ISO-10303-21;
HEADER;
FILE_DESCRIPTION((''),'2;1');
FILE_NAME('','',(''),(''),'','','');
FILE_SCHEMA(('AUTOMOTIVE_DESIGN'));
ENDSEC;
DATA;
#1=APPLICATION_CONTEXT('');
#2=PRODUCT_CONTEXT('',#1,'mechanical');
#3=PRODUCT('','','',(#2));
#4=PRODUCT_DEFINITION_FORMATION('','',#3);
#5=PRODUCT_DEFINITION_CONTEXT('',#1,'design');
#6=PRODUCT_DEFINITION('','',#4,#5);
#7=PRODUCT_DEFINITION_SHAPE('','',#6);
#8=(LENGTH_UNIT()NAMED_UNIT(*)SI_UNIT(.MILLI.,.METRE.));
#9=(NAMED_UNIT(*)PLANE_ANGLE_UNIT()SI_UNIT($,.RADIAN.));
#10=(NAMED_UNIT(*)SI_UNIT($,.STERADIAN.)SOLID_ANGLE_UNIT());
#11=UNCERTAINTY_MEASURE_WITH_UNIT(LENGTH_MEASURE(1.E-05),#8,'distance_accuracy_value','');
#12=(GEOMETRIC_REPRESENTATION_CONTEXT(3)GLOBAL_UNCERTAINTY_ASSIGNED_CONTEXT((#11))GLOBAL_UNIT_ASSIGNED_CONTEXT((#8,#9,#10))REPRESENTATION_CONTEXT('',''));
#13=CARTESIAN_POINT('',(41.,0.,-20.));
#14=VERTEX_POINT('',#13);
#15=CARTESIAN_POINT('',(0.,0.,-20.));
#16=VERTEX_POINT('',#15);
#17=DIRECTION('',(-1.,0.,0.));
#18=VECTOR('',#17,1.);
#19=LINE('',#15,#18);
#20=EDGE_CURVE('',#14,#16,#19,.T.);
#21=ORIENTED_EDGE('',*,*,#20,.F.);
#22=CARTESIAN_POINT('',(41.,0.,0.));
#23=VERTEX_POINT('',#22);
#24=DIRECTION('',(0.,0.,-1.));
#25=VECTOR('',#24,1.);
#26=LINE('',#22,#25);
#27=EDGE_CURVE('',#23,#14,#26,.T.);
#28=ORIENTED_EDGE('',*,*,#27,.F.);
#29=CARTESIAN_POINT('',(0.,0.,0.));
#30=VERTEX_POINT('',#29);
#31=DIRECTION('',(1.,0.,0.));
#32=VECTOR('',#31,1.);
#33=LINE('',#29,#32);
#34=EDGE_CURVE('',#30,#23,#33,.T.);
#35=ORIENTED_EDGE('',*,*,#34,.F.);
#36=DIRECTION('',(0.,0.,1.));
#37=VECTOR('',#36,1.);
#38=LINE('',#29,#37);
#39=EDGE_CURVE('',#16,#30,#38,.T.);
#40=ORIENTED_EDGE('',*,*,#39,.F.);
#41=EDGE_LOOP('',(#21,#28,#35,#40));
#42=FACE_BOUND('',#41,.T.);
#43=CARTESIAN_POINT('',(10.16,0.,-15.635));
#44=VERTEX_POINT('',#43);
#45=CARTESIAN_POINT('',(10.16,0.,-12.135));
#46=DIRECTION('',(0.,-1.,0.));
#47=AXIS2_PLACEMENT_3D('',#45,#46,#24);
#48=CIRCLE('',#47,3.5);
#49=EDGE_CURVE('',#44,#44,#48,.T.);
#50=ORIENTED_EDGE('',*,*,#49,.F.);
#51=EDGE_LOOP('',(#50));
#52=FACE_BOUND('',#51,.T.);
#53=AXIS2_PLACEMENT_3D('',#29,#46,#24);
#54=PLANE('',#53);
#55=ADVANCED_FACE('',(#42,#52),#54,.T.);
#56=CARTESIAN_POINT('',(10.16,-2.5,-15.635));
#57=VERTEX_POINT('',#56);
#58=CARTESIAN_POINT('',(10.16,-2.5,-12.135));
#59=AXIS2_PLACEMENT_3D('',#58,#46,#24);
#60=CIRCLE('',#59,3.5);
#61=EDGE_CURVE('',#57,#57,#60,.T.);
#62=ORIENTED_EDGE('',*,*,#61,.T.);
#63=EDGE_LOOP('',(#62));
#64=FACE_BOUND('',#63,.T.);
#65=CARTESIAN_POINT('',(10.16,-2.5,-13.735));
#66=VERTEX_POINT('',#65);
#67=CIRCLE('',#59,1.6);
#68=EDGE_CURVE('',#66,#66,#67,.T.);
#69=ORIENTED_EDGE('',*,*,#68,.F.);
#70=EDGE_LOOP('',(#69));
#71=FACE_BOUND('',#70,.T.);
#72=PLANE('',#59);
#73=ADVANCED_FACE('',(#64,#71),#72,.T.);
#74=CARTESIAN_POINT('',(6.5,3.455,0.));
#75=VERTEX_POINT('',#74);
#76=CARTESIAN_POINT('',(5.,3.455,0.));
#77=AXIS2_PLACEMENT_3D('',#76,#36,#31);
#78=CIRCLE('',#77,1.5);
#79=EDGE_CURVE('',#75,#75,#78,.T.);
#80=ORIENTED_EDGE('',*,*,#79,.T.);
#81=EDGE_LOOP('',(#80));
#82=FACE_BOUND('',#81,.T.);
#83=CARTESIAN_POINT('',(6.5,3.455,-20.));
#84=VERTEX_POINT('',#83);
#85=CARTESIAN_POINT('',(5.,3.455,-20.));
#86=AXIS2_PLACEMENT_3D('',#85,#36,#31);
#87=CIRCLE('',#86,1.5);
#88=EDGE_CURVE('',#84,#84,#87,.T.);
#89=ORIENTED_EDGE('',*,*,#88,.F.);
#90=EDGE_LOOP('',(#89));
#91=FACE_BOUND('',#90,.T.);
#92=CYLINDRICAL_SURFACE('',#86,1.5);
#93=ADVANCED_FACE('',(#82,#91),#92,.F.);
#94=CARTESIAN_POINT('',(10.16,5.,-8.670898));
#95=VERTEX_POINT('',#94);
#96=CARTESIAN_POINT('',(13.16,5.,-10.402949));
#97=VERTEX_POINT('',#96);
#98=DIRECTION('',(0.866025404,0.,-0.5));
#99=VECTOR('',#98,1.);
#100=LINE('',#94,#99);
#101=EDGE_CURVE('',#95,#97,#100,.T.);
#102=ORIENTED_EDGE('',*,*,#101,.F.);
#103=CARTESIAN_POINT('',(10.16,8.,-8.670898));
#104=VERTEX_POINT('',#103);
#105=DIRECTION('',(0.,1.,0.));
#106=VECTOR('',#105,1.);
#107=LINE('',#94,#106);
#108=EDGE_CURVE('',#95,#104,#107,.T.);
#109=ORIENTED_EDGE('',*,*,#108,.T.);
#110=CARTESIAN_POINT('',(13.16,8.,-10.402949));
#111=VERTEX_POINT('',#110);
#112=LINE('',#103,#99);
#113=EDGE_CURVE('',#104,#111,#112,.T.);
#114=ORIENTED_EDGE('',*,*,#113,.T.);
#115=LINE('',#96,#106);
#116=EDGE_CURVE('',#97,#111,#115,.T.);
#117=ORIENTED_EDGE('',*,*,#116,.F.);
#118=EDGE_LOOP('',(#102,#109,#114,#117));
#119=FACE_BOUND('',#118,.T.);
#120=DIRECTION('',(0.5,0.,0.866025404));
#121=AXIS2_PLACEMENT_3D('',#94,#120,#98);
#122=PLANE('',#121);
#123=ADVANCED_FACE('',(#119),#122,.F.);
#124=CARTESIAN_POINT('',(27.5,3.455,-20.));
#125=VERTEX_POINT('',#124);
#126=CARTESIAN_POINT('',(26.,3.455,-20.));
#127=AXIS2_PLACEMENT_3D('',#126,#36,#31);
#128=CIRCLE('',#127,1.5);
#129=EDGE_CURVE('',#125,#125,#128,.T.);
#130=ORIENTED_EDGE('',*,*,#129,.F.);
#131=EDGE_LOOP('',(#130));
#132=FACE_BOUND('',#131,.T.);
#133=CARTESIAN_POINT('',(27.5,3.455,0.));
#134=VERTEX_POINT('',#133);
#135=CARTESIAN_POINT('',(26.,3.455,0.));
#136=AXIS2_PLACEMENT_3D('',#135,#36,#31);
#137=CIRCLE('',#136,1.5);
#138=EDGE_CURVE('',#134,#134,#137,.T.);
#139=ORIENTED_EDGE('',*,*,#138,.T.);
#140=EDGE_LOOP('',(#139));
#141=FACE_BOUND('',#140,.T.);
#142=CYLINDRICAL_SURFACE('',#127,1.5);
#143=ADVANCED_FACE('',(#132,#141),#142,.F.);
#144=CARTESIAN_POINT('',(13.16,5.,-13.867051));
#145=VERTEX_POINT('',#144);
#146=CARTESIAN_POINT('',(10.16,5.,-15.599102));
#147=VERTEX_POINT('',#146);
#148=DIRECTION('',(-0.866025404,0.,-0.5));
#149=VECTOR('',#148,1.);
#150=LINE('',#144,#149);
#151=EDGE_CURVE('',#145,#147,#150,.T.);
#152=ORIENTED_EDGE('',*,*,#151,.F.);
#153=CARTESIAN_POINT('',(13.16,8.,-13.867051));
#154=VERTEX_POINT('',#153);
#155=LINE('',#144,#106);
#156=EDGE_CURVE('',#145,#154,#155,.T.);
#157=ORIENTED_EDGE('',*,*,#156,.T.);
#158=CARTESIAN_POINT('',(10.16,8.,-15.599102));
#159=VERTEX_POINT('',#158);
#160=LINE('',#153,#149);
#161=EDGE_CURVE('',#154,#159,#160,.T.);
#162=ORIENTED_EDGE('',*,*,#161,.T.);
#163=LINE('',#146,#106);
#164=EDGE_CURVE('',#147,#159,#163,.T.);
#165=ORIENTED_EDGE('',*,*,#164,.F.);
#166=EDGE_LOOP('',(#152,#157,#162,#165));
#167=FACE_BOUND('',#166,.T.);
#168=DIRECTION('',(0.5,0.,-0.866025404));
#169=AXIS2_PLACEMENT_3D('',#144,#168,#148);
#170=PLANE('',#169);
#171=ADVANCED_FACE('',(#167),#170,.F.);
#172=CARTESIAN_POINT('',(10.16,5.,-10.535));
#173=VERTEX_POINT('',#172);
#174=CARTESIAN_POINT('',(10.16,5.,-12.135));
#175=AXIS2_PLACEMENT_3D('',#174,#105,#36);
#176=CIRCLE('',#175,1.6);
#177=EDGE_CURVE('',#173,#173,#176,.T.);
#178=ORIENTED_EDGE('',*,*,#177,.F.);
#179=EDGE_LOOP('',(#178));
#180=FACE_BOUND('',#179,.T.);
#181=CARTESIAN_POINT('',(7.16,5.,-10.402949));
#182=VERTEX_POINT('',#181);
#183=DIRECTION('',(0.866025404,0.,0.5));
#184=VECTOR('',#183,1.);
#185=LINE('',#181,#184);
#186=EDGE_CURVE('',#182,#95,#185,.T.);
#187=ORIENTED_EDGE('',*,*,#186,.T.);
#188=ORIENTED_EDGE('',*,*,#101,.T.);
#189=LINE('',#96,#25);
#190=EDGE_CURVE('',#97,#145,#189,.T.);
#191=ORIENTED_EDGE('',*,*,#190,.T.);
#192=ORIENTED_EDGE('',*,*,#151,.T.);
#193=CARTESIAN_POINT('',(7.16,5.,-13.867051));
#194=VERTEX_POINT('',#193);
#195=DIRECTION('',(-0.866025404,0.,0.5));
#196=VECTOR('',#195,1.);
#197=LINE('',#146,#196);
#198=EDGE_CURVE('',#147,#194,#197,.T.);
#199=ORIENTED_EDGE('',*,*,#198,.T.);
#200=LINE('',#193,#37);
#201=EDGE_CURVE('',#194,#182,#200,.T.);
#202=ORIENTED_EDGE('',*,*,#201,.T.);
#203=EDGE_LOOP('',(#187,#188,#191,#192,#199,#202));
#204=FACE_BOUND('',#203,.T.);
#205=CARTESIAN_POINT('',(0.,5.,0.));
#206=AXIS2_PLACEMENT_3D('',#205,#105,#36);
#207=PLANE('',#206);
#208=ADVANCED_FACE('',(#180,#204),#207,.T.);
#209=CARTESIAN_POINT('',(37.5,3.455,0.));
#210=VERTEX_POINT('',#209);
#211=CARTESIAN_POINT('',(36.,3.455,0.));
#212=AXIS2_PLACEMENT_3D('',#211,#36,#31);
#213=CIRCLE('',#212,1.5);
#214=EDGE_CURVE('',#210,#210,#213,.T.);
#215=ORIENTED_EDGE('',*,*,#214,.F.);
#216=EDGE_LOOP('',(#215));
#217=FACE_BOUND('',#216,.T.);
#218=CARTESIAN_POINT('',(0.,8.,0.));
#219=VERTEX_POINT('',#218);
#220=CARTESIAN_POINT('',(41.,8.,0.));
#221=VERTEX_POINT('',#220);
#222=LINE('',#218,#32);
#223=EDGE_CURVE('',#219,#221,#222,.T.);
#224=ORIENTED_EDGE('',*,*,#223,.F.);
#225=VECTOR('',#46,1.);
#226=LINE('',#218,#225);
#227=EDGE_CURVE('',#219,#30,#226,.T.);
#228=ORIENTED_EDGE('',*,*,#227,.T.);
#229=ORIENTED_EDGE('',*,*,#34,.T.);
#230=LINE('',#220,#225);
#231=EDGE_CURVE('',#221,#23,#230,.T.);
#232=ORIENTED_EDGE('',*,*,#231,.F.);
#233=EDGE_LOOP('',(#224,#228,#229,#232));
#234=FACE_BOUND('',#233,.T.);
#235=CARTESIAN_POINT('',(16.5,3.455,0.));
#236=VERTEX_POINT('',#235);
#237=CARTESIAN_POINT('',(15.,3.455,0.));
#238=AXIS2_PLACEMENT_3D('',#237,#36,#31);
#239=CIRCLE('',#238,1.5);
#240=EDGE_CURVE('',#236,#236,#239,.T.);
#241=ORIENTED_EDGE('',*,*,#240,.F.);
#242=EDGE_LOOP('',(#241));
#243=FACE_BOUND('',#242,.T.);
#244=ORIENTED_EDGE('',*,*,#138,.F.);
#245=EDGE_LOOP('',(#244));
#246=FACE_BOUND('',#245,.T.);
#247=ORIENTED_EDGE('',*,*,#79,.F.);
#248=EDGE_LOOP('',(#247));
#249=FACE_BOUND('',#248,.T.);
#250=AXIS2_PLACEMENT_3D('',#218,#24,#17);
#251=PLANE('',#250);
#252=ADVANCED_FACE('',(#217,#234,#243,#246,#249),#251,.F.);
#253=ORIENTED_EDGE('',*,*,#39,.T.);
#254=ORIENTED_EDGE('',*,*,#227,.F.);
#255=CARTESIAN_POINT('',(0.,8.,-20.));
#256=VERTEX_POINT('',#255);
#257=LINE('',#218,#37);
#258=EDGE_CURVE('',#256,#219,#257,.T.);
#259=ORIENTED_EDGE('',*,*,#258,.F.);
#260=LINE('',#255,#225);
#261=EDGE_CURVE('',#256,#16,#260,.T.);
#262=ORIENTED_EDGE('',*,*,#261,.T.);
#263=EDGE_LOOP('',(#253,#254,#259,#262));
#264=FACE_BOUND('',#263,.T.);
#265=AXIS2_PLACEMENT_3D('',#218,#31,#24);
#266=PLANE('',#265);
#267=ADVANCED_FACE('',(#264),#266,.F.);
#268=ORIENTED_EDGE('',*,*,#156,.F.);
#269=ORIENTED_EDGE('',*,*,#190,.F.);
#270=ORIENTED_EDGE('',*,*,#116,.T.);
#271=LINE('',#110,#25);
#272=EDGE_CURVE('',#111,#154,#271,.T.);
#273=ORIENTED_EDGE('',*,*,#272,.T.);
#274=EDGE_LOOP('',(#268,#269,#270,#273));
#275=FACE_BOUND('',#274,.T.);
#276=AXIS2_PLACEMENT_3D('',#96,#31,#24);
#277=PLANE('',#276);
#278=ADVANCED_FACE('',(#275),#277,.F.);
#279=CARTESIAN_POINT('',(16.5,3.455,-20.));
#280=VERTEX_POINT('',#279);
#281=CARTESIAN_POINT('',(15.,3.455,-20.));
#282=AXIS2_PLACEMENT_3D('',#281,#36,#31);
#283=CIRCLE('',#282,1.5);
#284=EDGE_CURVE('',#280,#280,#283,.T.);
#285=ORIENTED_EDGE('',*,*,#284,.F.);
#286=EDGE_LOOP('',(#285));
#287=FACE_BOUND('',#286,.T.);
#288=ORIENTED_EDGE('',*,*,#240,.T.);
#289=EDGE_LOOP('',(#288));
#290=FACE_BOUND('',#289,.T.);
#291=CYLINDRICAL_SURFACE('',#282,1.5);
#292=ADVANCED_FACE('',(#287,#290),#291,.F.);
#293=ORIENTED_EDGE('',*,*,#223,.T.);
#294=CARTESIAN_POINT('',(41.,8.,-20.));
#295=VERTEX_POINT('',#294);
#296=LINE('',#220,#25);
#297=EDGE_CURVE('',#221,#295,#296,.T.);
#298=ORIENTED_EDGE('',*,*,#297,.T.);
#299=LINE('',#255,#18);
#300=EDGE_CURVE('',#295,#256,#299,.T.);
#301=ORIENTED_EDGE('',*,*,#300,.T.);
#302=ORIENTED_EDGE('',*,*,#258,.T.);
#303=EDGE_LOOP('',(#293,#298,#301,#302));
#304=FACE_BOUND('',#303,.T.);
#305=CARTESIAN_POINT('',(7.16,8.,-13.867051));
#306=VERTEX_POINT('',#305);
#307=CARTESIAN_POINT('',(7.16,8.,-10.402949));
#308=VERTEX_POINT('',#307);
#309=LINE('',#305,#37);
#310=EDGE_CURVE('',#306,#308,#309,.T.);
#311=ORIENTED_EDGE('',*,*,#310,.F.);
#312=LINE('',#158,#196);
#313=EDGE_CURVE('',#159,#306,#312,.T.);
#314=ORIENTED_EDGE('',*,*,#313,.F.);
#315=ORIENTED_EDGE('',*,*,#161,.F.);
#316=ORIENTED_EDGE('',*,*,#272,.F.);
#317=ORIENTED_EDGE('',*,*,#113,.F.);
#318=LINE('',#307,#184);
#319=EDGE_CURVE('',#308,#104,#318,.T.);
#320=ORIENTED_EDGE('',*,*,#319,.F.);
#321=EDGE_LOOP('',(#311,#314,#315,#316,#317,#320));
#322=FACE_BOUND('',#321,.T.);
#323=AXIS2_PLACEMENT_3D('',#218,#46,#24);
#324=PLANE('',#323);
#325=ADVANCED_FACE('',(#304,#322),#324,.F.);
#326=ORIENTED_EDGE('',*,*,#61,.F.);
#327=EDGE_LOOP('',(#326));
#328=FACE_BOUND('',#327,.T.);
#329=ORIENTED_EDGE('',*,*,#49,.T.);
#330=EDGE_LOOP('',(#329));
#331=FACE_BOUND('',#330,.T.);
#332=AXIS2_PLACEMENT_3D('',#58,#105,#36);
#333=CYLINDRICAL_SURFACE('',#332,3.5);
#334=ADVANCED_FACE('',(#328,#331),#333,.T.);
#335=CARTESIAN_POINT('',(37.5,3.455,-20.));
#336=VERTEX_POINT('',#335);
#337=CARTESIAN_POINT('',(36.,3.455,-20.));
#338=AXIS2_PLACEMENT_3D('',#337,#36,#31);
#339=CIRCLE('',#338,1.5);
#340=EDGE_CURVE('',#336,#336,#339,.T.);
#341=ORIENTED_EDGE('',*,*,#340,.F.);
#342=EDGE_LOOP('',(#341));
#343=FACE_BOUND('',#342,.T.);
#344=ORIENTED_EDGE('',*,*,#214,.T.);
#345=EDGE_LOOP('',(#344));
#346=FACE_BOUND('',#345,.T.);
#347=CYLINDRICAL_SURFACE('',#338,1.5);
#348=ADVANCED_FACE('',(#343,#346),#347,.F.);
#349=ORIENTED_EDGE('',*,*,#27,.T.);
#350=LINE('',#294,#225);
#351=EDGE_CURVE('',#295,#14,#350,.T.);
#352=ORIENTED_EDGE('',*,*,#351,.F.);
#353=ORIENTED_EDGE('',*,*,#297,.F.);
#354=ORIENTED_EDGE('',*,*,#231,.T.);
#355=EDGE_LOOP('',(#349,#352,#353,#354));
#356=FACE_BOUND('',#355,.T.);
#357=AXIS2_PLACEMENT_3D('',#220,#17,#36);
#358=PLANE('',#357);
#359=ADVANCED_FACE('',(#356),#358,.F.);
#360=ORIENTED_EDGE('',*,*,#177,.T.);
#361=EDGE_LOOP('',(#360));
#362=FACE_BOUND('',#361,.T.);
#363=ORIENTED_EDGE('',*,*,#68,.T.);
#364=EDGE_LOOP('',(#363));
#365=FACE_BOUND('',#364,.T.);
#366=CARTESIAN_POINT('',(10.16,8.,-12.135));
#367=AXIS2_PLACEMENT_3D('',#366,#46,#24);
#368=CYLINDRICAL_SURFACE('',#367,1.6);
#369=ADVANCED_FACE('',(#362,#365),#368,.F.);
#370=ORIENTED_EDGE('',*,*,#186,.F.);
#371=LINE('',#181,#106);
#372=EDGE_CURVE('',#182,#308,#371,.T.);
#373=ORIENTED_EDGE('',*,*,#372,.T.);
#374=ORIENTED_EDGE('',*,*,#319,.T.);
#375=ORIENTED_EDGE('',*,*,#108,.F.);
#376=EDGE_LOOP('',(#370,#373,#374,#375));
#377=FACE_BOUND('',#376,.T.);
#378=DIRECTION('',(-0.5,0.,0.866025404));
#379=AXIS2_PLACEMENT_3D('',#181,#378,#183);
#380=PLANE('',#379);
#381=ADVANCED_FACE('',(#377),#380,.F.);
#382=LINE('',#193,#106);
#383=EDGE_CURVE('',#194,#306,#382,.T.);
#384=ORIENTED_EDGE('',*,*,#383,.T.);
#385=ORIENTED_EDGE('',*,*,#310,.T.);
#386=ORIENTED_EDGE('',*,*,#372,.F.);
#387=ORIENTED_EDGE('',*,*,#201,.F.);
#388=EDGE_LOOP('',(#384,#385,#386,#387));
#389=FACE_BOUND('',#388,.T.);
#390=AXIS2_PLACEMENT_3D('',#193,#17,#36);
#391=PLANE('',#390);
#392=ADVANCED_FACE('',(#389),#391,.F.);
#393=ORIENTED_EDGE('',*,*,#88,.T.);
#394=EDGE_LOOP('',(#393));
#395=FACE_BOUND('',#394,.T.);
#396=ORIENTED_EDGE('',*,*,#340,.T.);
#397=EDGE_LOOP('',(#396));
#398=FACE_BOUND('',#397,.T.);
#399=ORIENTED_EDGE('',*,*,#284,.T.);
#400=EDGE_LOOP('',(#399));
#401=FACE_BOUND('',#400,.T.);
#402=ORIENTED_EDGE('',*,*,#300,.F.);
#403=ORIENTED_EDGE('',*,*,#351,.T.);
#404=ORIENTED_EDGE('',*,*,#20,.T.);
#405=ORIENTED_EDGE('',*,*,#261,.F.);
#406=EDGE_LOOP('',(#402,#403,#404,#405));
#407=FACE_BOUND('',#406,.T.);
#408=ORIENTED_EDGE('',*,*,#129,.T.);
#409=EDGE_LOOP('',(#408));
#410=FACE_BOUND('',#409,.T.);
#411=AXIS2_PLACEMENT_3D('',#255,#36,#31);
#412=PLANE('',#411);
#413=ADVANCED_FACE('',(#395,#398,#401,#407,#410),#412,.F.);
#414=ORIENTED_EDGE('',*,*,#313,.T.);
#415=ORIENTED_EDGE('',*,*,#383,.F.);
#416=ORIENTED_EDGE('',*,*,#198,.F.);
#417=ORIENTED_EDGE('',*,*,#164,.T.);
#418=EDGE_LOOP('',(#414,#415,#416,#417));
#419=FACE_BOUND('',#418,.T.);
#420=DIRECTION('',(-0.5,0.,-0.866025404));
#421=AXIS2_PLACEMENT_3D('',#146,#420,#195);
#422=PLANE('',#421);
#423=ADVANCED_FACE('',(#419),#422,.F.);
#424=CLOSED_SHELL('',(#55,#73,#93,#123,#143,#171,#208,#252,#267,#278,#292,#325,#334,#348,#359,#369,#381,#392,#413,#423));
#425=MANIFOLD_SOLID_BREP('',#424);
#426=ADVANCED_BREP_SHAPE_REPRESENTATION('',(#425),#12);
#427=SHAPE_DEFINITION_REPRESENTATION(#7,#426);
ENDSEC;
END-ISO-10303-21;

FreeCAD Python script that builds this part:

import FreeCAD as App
import Part
import Sketcher
Q = App.Units.Quantity

doc = App.newDocument("Part")
body = doc.addObject("PartDesign::Body", "Body")

# Sketch on XZ plane
sketch1 = doc.addObject("Sketcher::SketchObject", "Sketch")
body.addObject(sketch1)
sketch1.AttachmentSupport = (doc.XZ_Plane, [""])
sketch1.MapMode = "FlatFace"
sketch1.addGeometry([
    Part.LineSegment(App.Vector(0, -20, 0), App.Vector(0, 0, 0)),
    Part.LineSegment(App.Vector(0, 0, 0), App.Vector(41, 0, 0)),
    Part.LineSegment(App.Vector(41, 0, 0), App.Vector(41, -20, 0)),
    Part.LineSegment(App.Vector(41, -20, 0), App.Vector(0, -20, 0)),
], False)
sketch1.addConstraint([
    Sketcher.Constraint("Coincident", 0, 2, 1, 1),
    Sketcher.Constraint("Coincident", 1, 2, 2, 1),
    Sketcher.Constraint("Coincident", 2, 2, 3, 1),
    Sketcher.Constraint("Coincident", 3, 2, 0, 1),
    Sketcher.Constraint("Vertical", 0),
    Sketcher.Constraint("Horizontal", 1),
    Sketcher.Constraint("Vertical", 2),
    Sketcher.Constraint("Horizontal", 3),
    Sketcher.Constraint("Coincident", 0, 2, -1, 1),
    Sketcher.Constraint("DistanceX", 1, 1, 1, 2, 41.0),
    Sketcher.Constraint("DistanceY", 0, 1, 0, 2, 20.0),
])
pad1 = doc.addObject("PartDesign::Pad", "Pad")
body.addObject(pad1)
pad1.Profile = sketch1
pad1.Length = 8
pad1.Reversed = True

# Sketch on XY plane
sketch2 = doc.addObject("Sketcher::SketchObject", "Sketch001")
body.addObject(sketch2)
sketch2.AttachmentSupport = (doc.XY_Plane, [""])
sketch2.MapMode = "FlatFace"
sketch2.addGeometry(Part.Circle(App.Vector(5, 3.5, 0), App.Vector(0, 0, 1), 1.5), False)
sketch2.addConstraint([
    Sketcher.Constraint("Diameter", 0, 3.0),
    Sketcher.Constraint("DistanceX", -1, 1, 0, 3, 5.0),
    Sketcher.Constraint("DistanceY", -1, 1, 0, 3, 3.455),
])
pocket1 = doc.addObject("PartDesign::Pocket", "Pocket")
body.addObject(pocket1)
pocket1.Profile = sketch2
pocket1.Type = "ThroughAll"
doc.recompute()

linearpattern = doc.addObject("PartDesign::LinearPattern", "LinearPattern")
body.addObject(linearpattern)
linearpattern.Originals = [pocket1]
linearpattern.Direction = (doc.X_Axis, [""])
linearpattern.Mode = "offset"
linearpattern.Offset = 10
linearpattern.Occurrences = 2
body.Tip = linearpattern
doc.recompute()

linearpattern2 = doc.addObject("PartDesign::LinearPattern", "LinearPattern001")
body.addObject(linearpattern2)
linearpattern2.Originals = [pocket1]
linearpattern2.Direction = (doc.X_Axis, [""])
linearpattern2.Mode = "offset"
linearpattern2.Offset = 21
linearpattern2.Occurrences = 2
body.Tip = linearpattern2
doc.recompute()

linearpattern3 = doc.addObject("PartDesign::LinearPattern", "LinearPattern002")
body.addObject(linearpattern3)
linearpattern3.Originals = [pocket1]
linearpattern3.Direction = (doc.X_Axis, [""])
linearpattern3.Mode = "offset"
linearpattern3.Offset = 31
linearpattern3.Occurrences = 2
body.Tip = linearpattern3

# Sketch on XZ plane
sketch3 = doc.addObject("Sketcher::SketchObject", "Sketch002")
body.addObject(sketch3)
sketch3.AttachmentSupport = (doc.XZ_Plane, [""])
sketch3.MapMode = "FlatFace"
sketch3.addGeometry(Part.Circle(App.Vector(10.2, -12.1, 0), App.Vector(0, 0, 1), 1.6), False)
sketch3.addConstraint([
    Sketcher.Constraint("Diameter", 0, 3.2),
    Sketcher.Constraint("DistanceX", -1, 1, 0, 3, 10.16),
    Sketcher.Constraint("DistanceY", 0, 3, -1, 1, 12.135),
])
pocket2 = doc.addObject("PartDesign::Pocket", "Pocket001")
body.addObject(pocket2)
pocket2.Profile = sketch3
pocket2.Type = "ThroughAll"

# Sketch on XZ plane
sketch4 = doc.addObject("Sketcher::SketchObject", "Sketch003")
body.addObject(sketch4)
sketch4.AttachmentSupport = (doc.XZ_Plane, [""])
sketch4.MapMode = "FlatFace"
sketch4.AttachmentOffset = App.Placement(App.Vector(0, 0, 2.5), App.Rotation())
sketch4.addGeometry([
    Part.Circle(App.Vector(10.2, -12.1, 0), App.Vector(0, 0, 1), 3.5),
    Part.Circle(App.Vector(10.2, -12.1, 0), App.Vector(0, 0, 1), 1.6),
], False)
sketch4.addConstraint([
    Sketcher.Constraint("Coincident", 1, 3, 0, 3),
    Sketcher.Constraint("Diameter", 0, 7.0),
    Sketcher.Constraint("Diameter", 1, 3.2),
    Sketcher.Constraint("DistanceX", -1, 1, 0, 3, 10.16),
    Sketcher.Constraint("DistanceY", 0, 3, -1, 1, 12.135),
])
pad2 = doc.addObject("PartDesign::Pad", "Pad001")
body.addObject(pad2)
pad2.Profile = sketch4
pad2.Length = 2.5
pad2.Reversed = True

# Sketch on XZ plane
sketch5 = doc.addObject("Sketcher::SketchObject", "Sketch004")
body.addObject(sketch5)
sketch5.AttachmentSupport = (doc.XZ_Plane, [""])
sketch5.MapMode = "FlatFace"
sketch5.AttachmentOffset = App.Placement(App.Vector(0, 0, -8), App.Rotation())
sketch5.addGeometry([
    Part.LineSegment(App.Vector(7.2, -10.4, 0), App.Vector(10.2, -8.7, 0)),  # 0
    Part.LineSegment(App.Vector(10.2, -8.7, 0), App.Vector(13.2, -10.4, 0)),  # 1
    Part.LineSegment(App.Vector(13.2, -10.4, 0), App.Vector(13.2, -13.9, 0)),  # 2
    Part.LineSegment(App.Vector(13.2, -13.9, 0), App.Vector(10.2, -15.6, 0)),  # 3
    Part.LineSegment(App.Vector(10.2, -15.6, 0), App.Vector(7.2, -13.9, 0)),  # 4
    Part.LineSegment(App.Vector(7.2, -13.9, 0), App.Vector(7.2, -10.4, 0)),  # 5
], False)
sketch5.addConstraint([
    Sketcher.Constraint("Coincident", 0, 2, 1, 1),
    Sketcher.Constraint("Coincident", 1, 2, 2, 1),
    Sketcher.Constraint("Coincident", 2, 2, 3, 1),
    Sketcher.Constraint("Coincident", 3, 2, 4, 1),
    Sketcher.Constraint("Coincident", 4, 2, 5, 1),
    Sketcher.Constraint("Coincident", 5, 2, 0, 1),
    Sketcher.Constraint("Vertical", 2),
    Sketcher.Constraint("Vertical", 5),
    Sketcher.Constraint("Parallel", 0, 3),
    Sketcher.Constraint("Parallel", 1, 4),
    Sketcher.Constraint("Horizontal", 2, 2, 4, 2),
    Sketcher.Constraint("Horizontal", 1, 2, 5, 2),
    Sketcher.Constraint("Vertical", 0, 2, 3, 2),
    Sketcher.Constraint("Angle", 0, Q("30 deg")),
    Sketcher.Constraint("DistanceX", 0, 2, 1, 2, 3.0),
    Sketcher.Constraint("DistanceX", -1, 1, 0, 2, 10.16),
    Sketcher.Constraint("DistanceY", 2, 2, 2, 1, 3.464102),
    Sketcher.Constraint("DistanceY", 0, 2, -1, 1, 8.670898),
])
pocket3 = doc.addObject("PartDesign::Pocket", "Pocket002")
body.addObject(pocket3)
pocket3.Profile = sketch5
pocket3.Length = 3
pocket3.Reversed = True

doc.recompute()
